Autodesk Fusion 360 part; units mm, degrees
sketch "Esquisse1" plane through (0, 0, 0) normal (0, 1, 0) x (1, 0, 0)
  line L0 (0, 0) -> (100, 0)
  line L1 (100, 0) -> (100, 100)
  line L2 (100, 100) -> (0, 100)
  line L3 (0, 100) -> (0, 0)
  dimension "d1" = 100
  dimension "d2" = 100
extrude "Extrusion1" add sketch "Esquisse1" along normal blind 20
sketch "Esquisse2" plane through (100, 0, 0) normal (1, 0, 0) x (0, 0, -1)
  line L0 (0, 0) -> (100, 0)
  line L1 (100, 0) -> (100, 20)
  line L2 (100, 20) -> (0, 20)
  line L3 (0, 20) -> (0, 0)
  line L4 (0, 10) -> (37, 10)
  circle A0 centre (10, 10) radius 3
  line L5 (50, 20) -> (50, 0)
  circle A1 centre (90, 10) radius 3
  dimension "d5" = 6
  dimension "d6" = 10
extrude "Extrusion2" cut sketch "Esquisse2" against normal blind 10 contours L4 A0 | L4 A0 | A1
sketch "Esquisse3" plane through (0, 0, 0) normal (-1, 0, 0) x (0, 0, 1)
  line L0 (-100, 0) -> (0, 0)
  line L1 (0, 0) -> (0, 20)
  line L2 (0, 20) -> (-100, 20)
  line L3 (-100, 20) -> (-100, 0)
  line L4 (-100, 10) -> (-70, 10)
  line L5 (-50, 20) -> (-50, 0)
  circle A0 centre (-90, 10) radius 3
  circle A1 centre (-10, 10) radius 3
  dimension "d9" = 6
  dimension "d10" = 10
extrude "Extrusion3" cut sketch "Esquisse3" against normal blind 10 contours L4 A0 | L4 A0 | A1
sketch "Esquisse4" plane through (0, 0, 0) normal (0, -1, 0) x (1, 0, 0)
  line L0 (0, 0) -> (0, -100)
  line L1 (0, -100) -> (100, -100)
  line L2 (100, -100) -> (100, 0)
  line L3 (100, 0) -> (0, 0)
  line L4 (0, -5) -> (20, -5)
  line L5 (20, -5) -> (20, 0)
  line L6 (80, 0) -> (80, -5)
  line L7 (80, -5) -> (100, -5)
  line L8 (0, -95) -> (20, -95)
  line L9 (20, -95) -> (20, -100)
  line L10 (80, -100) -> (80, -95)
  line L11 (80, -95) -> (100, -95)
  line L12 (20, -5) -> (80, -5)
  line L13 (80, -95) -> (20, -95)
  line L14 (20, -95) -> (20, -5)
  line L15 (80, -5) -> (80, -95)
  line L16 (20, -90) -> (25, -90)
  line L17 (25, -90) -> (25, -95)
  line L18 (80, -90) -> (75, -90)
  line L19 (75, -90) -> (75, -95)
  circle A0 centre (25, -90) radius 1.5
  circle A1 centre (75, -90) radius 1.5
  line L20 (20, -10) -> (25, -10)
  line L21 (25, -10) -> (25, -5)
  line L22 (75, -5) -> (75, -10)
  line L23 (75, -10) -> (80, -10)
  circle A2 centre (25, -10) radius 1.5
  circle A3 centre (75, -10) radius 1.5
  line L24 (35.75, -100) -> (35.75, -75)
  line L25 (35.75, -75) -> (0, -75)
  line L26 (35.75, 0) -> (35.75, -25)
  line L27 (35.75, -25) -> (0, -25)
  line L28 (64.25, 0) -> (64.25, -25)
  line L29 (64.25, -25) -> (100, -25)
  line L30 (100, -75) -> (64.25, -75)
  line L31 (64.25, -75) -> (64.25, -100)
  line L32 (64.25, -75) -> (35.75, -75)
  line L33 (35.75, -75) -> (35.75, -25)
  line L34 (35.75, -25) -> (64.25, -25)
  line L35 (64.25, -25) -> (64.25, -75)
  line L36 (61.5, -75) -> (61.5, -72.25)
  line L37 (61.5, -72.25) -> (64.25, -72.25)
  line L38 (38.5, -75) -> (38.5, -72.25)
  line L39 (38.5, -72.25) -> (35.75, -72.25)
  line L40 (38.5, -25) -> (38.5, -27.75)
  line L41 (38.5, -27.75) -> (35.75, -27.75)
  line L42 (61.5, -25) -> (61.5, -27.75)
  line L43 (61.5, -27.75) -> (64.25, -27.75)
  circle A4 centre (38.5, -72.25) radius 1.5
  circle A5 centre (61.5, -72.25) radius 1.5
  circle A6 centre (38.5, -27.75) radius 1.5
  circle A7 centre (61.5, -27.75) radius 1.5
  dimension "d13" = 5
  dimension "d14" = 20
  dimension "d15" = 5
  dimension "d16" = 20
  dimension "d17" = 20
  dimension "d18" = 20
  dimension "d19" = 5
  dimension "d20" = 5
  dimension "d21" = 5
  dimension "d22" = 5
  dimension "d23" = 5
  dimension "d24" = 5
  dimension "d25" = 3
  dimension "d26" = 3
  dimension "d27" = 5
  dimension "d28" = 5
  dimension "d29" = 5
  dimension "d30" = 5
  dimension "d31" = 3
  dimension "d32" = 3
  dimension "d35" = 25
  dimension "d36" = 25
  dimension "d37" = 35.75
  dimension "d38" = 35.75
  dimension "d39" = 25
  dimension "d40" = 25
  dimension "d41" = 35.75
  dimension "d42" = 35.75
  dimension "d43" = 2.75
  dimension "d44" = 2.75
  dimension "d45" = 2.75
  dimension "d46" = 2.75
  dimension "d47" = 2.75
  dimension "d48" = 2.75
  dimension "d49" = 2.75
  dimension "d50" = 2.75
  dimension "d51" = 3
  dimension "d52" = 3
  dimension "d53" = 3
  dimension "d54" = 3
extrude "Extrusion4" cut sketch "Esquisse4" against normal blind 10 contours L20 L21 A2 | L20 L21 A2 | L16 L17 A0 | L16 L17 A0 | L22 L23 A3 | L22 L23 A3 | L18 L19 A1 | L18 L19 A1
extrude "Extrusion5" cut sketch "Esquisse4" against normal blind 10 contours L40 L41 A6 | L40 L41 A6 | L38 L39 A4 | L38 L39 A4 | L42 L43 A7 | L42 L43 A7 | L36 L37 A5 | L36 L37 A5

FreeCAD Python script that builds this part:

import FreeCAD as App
import Part
import Sketcher

V = App.Vector
Q = App.Units.Quantity


def add_polygon(sketch, points):
    """Adds a closed chain of lines whose ends are joined by coincident constraints."""
    first, n = sketch.GeometryCount, len(points)
    for a, b in zip(points, points[1:] + points[:1]):
        sketch.addGeometry(Part.LineSegment(App.Vector(*a, 0), App.Vector(*b, 0)), False)
    for i in range(n):
        sketch.addConstraint(Sketcher.Constraint("Coincident", first + i, 2, first + (i + 1) % n, 1))

doc = App.newDocument("Part")
params = doc.addObject("Spreadsheet::Sheet", "Params")
for row, (alias, value) in enumerate([
    ("sketch1_width", "100 mm"),
    ("pad1_length", "20 mm"),
    ("sketch2_diameter", "6 mm"),
    ("pocket1_length", "10 mm"),
    ("sketch3_diameter", "6 mm"),
    ("pocket2_length", "10 mm"),
    ("sketch4_diameter", "3 mm"),
    ("pocket3_length", "10 mm"),
    ("sketch5_diameter", "3 mm"),
    ("pocket4_length", "10 mm"),
], start=1):
    params.set(f"A{row}", alias)
    params.set(f"B{row}", "=" + value)
    params.setAlias(f"B{row}", alias)

body = doc.addObject("PartDesign::Body", "Body")

sketch1 = body.newObject("Sketcher::SketchObject", "Sketch")
sketch1.AttachmentSupport = (doc.getObject("XZ_Plane"), [""])
sketch1.MapMode = "FlatFace"
add_polygon(sketch1, [(0, -100), (0, 0), (100, 0), (100, -100)])
sketch1.addConstraint([
    Sketcher.Constraint("Vertical", 0),
    Sketcher.Constraint("Horizontal", 1),
    Sketcher.Constraint("Vertical", 2),
    Sketcher.Constraint("Horizontal", 3),
    Sketcher.Constraint("Coincident", 0, 2, -1, 1),
    Sketcher.Constraint("Equal", 3, 0),
    Sketcher.Constraint("DistanceX", 1, 1, 1, 2, Q("100 mm")),
])
sketch1.setExpression("Constraints[10]", "Params.sketch1_width")
pad1 = body.newObject("PartDesign::Pad", "Pad")
pad1.Profile = sketch1
pad1.setExpression("Length", "Params.pad1_length")
pad1.Reversed = True

sketch2 = body.newObject("Sketcher::SketchObject", "Sketch001")
sketch2.AttachmentSupport = (doc.getObject("YZ_Plane"), [""])
sketch2.MapMode = "FlatFace"
sketch2.AttachmentOffset = App.Placement(V(0, 0, 100), App.Rotation())
sketch2.addGeometry([
    Part.Circle(V(10, -10, 0), V(0, 0, 1), 3),
    Part.Circle(V(10, -90, 0), V(0, 0, 1), 3),
], False)
sketch2.addConstraint([
    Sketcher.Constraint("Equal", 0, 1),
    Sketcher.Constraint("Vertical", 0, 3, 1, 3),
    Sketcher.Constraint("Diameter", 0, Q("6 mm")),
    Sketcher.Constraint("DistanceX", -1, 1, 0, 3, Q("10 mm")),
    Sketcher.Constraint("DistanceY", 0, 3, -1, 1, Q("10 mm")),
    Sketcher.Constraint("DistanceY", 1, 3, -1, 1, Q("90 mm")),
])
sketch2.setExpression("Constraints[2]", "Params.sketch2_diameter")
pocket1 = body.newObject("PartDesign::Pocket", "Pocket")
pocket1.Profile = sketch2
pocket1.setExpression("Length", "Params.pocket1_length")

sketch3 = body.newObject("Sketcher::SketchObject", "Sketch002")
sketch3.AttachmentSupport = (doc.getObject("YZ_Plane"), [""])
sketch3.MapMode = "FlatFace"
sketch3.addGeometry([
    Part.Circle(V(10, -90, 0), V(0, 0, 1), 3),
    Part.Circle(V(10, -10, 0), V(0, 0, 1), 3),
], False)
sketch3.addConstraint([
    Sketcher.Constraint("Equal", 0, 1),
    Sketcher.Constraint("Vertical", 0, 3, 1, 3),
    Sketcher.Constraint("Diameter", 0, Q("6 mm")),
    Sketcher.Constraint("DistanceX", -1, 1, 0, 3, Q("10 mm")),
    Sketcher.Constraint("DistanceY", 1, 3, -1, 1, Q("10 mm")),
    Sketcher.Constraint("DistanceY", 0, 3, -1, 1, Q("90 mm")),
])
sketch3.setExpression("Constraints[2]", "Params.sketch3_diameter")
pocket2 = body.newObject("PartDesign::Pocket", "Pocket001")
pocket2.Profile = sketch3
pocket2.setExpression("Length", "Params.pocket2_length")
pocket2.Reversed = True

sketch4 = body.newObject("Sketcher::SketchObject", "Sketch003")
sketch4.AttachmentSupport = (doc.getObject("XZ_Plane"), [""])
sketch4.MapMode = "FlatFace"
sketch4.addGeometry([
    Part.Circle(V(25, -10, 0), V(0, 0, 1), 1.5),
    Part.Circle(V(25, -90, 0), V(0, 0, 1), 1.5),
    Part.Circle(V(75, -10, 0), V(0, 0, 1), 1.5),
    Part.Circle(V(75, -90, 0), V(0, 0, 1), 1.5),
], False)
sketch4.addConstraint([
    Sketcher.Constraint("Equal", 0, 1),
    Sketcher.Constraint("Equal", 1, 2),
    Sketcher.Constraint("Equal", 2, 3),
    Sketcher.Constraint("Horizontal", 0, 3, 2, 3),
    Sketcher.Constraint("Horizontal", 1, 3, 3, 3),
    Sketcher.Constraint("Vertical", 0, 3, 1, 3),
    Sketcher.Constraint("Vertical", 2, 3, 3, 3),
    Sketcher.Constraint("Diameter", 0, Q("3 mm")),
    Sketcher.Constraint("DistanceX", -1, 1, 0, 3, Q("25 mm")),
    Sketcher.Constraint("DistanceY", 0, 3, -1, 1, Q("10 mm")),
    Sketcher.Constraint("DistanceY", 1, 3, -1, 1, Q("90 mm")),
    Sketcher.Constraint("DistanceX", -1, 1, 2, 3, Q("75 mm")),
])
sketch4.setExpression("Constraints[7]", "Params.sketch4_diameter")
pocket3 = body.newObject("PartDesign::Pocket", "Pocket002")
pocket3.Profile = sketch4
pocket3.setExpression("Length", "Params.pocket3_length")

sketch5 = body.newObject("Sketcher::SketchObject", "Sketch004")
sketch5.AttachmentSupport = (doc.getObject("XZ_Plane"), [""])
sketch5.MapMode = "FlatFace"
sketch5.addGeometry([
    Part.Circle(V(38.5, -27.75, 0), V(0, 0, 1), 1.5),
    Part.Circle(V(38.5, -72.25, 0), V(0, 0, 1), 1.5),
    Part.Circle(V(61.5, -27.75, 0), V(0, 0, 1), 1.5),
    Part.Circle(V(61.5, -72.25, 0), V(0, 0, 1), 1.5),
], False)
sketch5.addConstraint([
    Sketcher.Constraint("Equal", 0, 1),
    Sketcher.Constraint("Equal", 1, 2),
    Sketcher.Constraint("Equal", 2, 3),
    Sketcher.Constraint("Horizontal", 0, 3, 2, 3),
    Sketcher.Constraint("Horizontal", 1, 3, 3, 3),
    Sketcher.Constraint("Vertical", 0, 3, 1, 3),
    Sketcher.Constraint("Vertical", 2, 3, 3, 3),
    Sketcher.Constraint("Diameter", 0, Q("3 mm")),
    Sketcher.Constraint("DistanceX", 0, 3, 2, 3, Q("23 mm")),
    Sketcher.Constraint("DistanceX", -1, 1, 0, 3, Q("38.5 mm")),
    Sketcher.Constraint("DistanceY", 1, 3, 0, 3, Q("44.5 mm")),
    Sketcher.Constraint("DistanceY", 0, 3, -1, 1, Q("27.75 mm")),
])
sketch5.setExpression("Constraints[7]", "Params.sketch5_diameter")
pocket4 = body.newObject("PartDesign::Pocket", "Pocket003")
pocket4.Profile = sketch5
pocket4.setExpression("Length", "Params.pocket4_length")

doc.recompute()
